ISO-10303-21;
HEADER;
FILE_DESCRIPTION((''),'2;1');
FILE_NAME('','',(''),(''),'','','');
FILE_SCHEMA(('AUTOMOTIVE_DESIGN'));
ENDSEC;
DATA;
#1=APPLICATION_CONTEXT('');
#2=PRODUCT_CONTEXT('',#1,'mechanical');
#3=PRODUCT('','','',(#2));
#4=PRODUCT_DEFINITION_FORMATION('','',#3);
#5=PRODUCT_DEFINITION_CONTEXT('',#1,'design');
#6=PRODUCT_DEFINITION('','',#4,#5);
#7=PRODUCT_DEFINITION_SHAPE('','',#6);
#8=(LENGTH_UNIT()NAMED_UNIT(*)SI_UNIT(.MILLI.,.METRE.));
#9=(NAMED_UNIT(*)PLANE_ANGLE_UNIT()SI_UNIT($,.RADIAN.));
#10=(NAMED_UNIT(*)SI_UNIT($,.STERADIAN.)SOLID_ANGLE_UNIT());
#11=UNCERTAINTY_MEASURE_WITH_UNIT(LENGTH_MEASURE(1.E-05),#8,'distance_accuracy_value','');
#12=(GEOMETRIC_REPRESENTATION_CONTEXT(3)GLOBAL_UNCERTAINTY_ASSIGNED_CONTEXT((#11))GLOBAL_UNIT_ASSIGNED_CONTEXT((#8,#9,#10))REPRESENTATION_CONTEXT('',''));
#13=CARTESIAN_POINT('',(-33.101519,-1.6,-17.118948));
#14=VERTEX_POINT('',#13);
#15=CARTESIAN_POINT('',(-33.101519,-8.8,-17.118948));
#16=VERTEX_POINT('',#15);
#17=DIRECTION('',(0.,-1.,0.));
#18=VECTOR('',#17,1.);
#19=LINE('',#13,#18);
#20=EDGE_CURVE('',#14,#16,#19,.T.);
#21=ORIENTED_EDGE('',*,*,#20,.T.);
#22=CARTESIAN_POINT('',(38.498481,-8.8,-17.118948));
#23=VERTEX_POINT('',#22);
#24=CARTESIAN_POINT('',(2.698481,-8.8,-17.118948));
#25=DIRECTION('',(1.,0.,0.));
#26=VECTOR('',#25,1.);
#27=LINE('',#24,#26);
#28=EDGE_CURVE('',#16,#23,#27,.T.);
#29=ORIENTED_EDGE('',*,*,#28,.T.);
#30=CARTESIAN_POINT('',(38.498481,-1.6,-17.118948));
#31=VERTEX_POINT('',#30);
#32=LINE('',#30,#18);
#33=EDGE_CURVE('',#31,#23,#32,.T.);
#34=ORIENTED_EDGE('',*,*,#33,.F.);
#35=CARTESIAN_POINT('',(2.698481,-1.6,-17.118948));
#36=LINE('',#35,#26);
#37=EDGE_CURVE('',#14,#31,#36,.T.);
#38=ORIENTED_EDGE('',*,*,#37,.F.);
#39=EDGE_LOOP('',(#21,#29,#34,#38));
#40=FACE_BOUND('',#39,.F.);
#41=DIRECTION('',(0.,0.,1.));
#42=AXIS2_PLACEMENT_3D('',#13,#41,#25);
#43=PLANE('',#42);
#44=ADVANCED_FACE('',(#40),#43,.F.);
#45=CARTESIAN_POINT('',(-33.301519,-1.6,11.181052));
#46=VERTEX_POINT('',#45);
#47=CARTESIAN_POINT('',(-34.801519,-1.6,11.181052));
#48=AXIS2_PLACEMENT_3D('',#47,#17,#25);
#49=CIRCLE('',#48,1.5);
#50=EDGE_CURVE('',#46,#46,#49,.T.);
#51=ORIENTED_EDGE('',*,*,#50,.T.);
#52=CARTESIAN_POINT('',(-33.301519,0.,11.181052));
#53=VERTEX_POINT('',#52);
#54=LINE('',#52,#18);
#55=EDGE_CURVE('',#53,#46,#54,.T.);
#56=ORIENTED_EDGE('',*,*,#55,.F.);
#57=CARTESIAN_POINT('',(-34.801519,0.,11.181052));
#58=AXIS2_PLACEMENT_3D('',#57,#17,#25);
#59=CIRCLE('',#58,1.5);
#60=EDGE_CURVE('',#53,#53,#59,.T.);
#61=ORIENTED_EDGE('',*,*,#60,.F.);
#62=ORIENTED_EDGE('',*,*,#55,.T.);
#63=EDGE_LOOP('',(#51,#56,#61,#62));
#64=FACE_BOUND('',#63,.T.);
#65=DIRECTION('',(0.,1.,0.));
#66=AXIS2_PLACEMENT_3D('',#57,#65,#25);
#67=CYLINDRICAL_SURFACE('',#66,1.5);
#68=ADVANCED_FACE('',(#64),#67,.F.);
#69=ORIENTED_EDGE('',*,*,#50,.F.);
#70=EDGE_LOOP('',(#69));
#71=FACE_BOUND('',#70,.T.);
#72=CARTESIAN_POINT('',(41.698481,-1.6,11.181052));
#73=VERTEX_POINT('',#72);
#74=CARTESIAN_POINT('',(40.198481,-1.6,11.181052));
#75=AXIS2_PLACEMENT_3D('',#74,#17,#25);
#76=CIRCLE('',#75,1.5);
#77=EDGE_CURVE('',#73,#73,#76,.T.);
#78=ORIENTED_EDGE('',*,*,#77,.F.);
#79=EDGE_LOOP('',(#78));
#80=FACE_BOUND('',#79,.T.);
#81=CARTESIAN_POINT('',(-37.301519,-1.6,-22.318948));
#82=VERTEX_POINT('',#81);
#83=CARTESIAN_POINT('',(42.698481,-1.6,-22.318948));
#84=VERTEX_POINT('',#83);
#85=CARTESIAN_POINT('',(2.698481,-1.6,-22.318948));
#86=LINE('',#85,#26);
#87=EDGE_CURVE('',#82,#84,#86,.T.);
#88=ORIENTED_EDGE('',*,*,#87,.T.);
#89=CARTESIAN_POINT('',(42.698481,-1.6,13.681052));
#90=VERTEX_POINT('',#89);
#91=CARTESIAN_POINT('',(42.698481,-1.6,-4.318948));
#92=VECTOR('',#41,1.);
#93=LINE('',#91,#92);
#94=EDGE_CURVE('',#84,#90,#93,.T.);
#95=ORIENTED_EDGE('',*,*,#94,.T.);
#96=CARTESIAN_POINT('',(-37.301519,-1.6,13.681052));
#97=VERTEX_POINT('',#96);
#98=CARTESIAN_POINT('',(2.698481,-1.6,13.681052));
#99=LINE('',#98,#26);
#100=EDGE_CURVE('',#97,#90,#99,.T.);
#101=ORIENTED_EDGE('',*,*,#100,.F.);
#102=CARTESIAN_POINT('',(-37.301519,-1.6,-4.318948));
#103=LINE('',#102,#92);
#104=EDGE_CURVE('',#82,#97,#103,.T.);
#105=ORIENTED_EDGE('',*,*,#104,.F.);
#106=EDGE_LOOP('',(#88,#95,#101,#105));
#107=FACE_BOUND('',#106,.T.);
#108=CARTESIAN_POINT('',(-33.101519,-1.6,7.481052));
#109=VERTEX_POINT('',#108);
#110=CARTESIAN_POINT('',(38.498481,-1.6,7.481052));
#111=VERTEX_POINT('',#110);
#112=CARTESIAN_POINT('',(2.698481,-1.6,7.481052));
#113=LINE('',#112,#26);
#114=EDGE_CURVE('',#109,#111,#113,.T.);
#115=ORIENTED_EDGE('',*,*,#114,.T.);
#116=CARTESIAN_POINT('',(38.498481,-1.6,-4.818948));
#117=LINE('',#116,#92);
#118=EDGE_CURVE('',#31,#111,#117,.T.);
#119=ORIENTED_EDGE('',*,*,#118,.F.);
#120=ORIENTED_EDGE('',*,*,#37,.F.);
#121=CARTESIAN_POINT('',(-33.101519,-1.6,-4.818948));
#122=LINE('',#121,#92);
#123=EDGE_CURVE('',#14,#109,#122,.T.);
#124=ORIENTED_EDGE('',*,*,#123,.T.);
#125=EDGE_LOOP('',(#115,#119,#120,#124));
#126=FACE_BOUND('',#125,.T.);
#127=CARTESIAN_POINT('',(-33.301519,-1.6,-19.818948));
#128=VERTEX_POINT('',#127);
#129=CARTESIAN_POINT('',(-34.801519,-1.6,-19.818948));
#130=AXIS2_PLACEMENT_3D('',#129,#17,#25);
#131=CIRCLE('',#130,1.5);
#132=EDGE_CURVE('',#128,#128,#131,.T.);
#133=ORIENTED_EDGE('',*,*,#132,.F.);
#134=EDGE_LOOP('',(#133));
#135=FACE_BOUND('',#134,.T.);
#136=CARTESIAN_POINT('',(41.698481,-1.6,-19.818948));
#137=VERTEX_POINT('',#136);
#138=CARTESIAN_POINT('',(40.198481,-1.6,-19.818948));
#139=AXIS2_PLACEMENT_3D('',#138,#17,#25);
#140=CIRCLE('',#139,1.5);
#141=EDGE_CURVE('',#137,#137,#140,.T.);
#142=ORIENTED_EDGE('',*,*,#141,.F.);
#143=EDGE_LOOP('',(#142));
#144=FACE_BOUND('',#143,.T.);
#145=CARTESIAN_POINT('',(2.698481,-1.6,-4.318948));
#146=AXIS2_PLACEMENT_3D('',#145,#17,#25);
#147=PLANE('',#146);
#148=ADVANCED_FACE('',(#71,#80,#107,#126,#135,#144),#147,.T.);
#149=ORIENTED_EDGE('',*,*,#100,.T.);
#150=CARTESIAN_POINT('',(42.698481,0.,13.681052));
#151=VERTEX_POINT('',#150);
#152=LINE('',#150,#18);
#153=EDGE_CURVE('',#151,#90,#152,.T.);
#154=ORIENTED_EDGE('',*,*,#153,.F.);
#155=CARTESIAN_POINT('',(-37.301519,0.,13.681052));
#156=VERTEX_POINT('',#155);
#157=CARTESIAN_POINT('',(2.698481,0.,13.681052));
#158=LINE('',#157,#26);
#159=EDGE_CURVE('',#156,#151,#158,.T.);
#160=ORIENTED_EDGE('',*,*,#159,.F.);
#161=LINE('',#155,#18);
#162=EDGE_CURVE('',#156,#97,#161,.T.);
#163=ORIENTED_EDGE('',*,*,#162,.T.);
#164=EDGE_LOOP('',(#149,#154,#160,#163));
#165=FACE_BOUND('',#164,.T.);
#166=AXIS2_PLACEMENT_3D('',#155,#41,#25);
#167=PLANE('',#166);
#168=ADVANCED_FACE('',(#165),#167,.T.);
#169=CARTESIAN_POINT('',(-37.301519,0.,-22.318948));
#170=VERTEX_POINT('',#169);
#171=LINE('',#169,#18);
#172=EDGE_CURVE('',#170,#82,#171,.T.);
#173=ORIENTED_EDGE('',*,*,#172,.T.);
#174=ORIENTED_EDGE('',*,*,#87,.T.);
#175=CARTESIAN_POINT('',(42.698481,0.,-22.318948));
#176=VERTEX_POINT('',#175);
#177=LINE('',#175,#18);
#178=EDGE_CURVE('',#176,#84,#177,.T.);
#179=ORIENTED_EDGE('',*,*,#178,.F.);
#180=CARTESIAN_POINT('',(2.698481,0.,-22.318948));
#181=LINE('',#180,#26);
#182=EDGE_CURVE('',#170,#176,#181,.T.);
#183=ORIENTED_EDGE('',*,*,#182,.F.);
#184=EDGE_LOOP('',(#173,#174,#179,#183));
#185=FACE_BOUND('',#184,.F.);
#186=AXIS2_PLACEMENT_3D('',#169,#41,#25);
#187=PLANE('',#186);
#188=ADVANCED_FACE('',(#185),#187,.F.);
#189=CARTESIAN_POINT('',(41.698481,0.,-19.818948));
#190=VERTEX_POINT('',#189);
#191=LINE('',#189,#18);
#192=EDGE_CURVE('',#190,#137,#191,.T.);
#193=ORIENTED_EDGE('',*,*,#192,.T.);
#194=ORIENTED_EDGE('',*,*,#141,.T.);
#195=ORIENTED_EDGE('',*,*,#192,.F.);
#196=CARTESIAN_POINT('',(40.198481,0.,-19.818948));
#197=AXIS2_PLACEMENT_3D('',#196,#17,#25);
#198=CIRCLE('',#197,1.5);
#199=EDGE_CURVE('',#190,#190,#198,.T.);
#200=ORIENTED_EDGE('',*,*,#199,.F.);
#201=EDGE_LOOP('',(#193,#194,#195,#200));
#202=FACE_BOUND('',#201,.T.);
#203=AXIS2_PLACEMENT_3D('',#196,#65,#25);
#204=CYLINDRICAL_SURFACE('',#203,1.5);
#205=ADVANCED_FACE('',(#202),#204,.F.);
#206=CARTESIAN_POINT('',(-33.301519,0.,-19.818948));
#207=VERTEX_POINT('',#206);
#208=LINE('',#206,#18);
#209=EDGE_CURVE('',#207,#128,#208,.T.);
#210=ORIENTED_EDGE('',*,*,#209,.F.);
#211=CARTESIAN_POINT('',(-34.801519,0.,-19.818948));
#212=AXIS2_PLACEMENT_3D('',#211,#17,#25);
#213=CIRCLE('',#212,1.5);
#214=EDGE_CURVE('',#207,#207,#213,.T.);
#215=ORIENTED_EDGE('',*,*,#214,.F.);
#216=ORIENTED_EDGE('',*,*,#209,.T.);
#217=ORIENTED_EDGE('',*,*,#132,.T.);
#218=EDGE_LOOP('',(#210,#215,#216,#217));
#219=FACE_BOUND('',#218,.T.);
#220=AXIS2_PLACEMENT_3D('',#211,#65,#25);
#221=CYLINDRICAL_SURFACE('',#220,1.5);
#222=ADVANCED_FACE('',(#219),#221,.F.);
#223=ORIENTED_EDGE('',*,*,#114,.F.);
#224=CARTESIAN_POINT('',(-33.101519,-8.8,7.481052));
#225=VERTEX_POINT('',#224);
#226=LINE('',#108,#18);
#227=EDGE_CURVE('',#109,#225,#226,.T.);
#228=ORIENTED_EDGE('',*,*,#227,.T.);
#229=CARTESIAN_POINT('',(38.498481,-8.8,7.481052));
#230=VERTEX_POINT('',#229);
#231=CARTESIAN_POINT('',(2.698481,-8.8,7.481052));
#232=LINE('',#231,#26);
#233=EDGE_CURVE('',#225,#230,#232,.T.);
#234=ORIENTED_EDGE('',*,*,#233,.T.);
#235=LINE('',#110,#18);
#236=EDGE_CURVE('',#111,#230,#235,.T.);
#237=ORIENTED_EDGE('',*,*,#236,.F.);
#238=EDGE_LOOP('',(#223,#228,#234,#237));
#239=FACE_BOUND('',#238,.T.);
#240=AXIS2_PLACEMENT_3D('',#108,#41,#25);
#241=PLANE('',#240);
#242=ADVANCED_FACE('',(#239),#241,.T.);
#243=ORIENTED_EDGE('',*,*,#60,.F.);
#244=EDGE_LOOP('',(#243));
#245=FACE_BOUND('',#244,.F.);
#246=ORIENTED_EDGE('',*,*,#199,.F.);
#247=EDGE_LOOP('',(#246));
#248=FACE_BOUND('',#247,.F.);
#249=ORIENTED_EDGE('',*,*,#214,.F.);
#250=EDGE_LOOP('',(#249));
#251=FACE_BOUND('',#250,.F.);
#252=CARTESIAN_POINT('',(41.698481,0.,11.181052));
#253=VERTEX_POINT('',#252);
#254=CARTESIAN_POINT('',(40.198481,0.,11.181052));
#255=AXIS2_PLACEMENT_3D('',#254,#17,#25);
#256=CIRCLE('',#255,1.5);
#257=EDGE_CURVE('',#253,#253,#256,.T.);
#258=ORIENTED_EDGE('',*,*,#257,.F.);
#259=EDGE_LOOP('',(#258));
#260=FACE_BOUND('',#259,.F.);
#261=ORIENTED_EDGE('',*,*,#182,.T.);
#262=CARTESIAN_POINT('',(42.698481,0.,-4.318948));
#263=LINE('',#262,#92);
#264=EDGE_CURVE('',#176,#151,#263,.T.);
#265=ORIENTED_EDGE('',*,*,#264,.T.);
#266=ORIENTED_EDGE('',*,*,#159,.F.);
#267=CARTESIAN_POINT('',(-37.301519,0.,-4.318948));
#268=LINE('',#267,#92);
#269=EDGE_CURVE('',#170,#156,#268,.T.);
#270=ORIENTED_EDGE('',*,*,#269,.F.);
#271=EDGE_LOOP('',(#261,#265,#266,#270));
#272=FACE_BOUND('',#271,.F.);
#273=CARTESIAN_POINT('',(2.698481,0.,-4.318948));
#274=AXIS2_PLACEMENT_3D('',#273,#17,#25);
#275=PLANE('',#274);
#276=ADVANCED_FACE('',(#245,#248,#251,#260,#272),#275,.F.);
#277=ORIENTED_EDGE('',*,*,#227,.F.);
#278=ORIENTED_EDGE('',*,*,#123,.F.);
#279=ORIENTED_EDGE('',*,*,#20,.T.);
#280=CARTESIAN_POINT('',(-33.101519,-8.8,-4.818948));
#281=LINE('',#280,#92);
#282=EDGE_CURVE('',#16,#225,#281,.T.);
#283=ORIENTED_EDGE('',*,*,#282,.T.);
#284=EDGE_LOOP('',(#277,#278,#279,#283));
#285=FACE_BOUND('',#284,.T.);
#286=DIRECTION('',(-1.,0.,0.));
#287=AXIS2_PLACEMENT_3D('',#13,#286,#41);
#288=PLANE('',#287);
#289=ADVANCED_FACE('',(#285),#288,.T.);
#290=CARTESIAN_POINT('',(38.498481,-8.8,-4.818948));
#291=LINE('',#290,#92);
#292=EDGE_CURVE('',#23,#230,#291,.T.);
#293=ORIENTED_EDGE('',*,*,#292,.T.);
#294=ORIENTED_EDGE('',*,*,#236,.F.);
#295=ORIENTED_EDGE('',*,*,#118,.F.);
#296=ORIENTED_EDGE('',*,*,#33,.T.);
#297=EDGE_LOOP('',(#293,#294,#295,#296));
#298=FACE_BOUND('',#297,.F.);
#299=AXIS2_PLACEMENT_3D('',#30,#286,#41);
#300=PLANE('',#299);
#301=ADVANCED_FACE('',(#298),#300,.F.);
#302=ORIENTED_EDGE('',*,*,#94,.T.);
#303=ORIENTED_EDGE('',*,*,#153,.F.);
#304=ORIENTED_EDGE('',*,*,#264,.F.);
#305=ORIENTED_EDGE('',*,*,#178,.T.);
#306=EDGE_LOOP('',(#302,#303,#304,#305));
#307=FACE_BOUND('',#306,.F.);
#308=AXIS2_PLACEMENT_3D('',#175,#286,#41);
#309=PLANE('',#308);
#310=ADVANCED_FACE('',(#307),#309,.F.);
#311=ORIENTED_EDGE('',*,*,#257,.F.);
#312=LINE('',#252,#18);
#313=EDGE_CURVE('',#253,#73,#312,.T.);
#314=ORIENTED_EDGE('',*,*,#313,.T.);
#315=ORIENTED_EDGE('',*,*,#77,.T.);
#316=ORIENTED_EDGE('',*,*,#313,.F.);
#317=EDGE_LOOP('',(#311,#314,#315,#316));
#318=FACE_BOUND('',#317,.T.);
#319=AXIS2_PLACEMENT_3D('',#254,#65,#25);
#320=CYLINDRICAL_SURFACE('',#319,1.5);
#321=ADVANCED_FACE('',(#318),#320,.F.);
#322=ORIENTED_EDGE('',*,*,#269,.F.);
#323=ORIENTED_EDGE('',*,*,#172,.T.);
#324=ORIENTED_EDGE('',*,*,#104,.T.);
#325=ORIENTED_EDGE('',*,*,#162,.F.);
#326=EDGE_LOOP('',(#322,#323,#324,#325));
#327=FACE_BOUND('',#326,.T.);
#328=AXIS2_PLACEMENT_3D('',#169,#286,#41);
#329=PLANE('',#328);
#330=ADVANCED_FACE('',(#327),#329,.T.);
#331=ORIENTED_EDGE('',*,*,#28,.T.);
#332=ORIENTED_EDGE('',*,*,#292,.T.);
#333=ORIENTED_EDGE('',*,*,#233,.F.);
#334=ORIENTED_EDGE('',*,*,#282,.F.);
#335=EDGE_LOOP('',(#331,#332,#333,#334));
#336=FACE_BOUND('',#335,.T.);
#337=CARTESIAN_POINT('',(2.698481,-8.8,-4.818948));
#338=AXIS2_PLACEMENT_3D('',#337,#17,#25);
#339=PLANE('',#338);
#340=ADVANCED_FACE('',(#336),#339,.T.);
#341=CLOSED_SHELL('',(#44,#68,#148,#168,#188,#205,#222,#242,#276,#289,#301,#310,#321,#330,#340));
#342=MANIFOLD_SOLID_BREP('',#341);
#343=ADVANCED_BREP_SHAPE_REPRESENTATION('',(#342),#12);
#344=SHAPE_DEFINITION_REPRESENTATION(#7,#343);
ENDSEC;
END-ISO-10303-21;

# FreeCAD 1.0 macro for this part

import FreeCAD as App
import Part
import Sketcher
from FreeCAD import Vector
Q = App.Units.Quantity

doc = App.newDocument("Part")
body = doc.addObject("PartDesign::Body", "Body")

sketch1 = doc.addObject("Sketcher::SketchObject", "Sketch")
body.addObject(sketch1)
sketch1.AttachmentSupport = (doc.XZ_Plane, [""])
sketch1.MapMode = "FlatFace"
sketch1.addGeometry([
    Part.LineSegment(Vector(-37.3, 13.7, 0), Vector(-37.3, -22.3, 0)),
    Part.LineSegment(Vector(-37.3, -22.3, 0), Vector(42.7, -22.3, 0)),
    Part.LineSegment(Vector(42.7, -22.3, 0), Vector(42.7, 13.7, 0)),
    Part.LineSegment(Vector(42.7, 13.7, 0), Vector(-37.3, 13.7, 0)),
    Part.Circle(Vector(-34.8, -19.8, 0), Vector(0, 0, 1), 1.5),
    Part.Circle(Vector(40.2, -19.8, 0), Vector(0, 0, 1), 1.5),
    Part.Circle(Vector(-34.8, 11.2, 0), Vector(0, 0, 1), 1.5),
    Part.Circle(Vector(40.2, 11.2, 0), Vector(0, 0, 1), 1.5),
], False)
sketch1.addConstraint([
    Sketcher.Constraint("Coincident", 0, 2, 1, 1),
    Sketcher.Constraint("Coincident", 1, 2, 2, 1),
    Sketcher.Constraint("Coincident", 2, 2, 3, 1),
    Sketcher.Constraint("Coincident", 3, 2, 0, 1),
    Sketcher.Constraint("Vertical", 0),
    Sketcher.Constraint("Horizontal", 1),
    Sketcher.Constraint("Vertical", 2),
    Sketcher.Constraint("Horizontal", 3),
    Sketcher.Constraint("Equal", 4, 5),
    Sketcher.Constraint("Equal", 5, 6),
    Sketcher.Constraint("Equal", 6, 7),
    Sketcher.Constraint("Horizontal", 4, 3, 5, 3),
    Sketcher.Constraint("Horizontal", 6, 3, 7, 3),
    Sketcher.Constraint("Vertical", 4, 3, 6, 3),
    Sketcher.Constraint("Vertical", 5, 3, 7, 3),
    Sketcher.Constraint("Diameter", 4, Q("3 mm")),
    Sketcher.Constraint("DistanceX", 1, 1, 1, 2, Q("80 mm")),
    Sketcher.Constraint("DistanceY", 0, 2, 0, 1, Q("36 mm")),
    Sketcher.Constraint("DistanceX", 4, 3, 5, 3, Q("75 mm")),
    Sketcher.Constraint("DistanceY", 4, 3, 6, 3, Q("31 mm")),
    Sketcher.Constraint("DistanceX", 0, 2, 4, 3, Q("2.5 mm")),
    Sketcher.Constraint("DistanceY", 0, 2, 4, 3, Q("2.5 mm")),
    Sketcher.Constraint("DistanceX", 4, 3, -1, 1, Q("34.801519 mm")),
    Sketcher.Constraint("DistanceY", -1, 1, 6, 3, Q("11.181052 mm")),
])
pad1 = doc.addObject("PartDesign::Pad", "Pad")
body.addObject(pad1)
pad1.Profile = sketch1
pad1.Length = 1.6

sketch2 = doc.addObject("Sketcher::SketchObject", "Sketch001")
body.addObject(sketch2)
sketch2.AttachmentSupport = (doc.XZ_Plane, [""])
sketch2.MapMode = "FlatFace"
sketch2.AttachmentOffset = App.Placement(Vector(0, 0, 1.6), App.Rotation())
sketch2.addGeometry([
    Part.LineSegment(Vector(-33, 7, 0), Vector(-33, -17, 0)),
    Part.LineSegment(Vector(-33, -17, 0), Vector(38, -17, 0)),
    Part.LineSegment(Vector(38, -17, 0), Vector(38, 7, 0)),
    Part.LineSegment(Vector(38, 7, 0), Vector(-33, 7, 0)),
], False)
sketch2.addConstraint([
    Sketcher.Constraint("Coincident", 0, 2, 1, 1),
    Sketcher.Constraint("Coincident", 1, 2, 2, 1),
    Sketcher.Constraint("Coincident", 2, 2, 3, 1),
    Sketcher.Constraint("Coincident", 3, 2, 0, 1),
    Sketcher.Constraint("Vertical", 0),
    Sketcher.Constraint("Horizontal", 1),
    Sketcher.Constraint("Vertical", 2),
    Sketcher.Constraint("Horizontal", 3),
    Sketcher.Constraint("DistanceX", 1, 1, 1, 2, Q("71.6 mm")),
    Sketcher.Constraint("DistanceY", 0, 2, 0, 1, Q("24.6 mm")),
    Sketcher.Constraint("DistanceX", 0, 2, -1, 1, Q("33.101519 mm")),
    Sketcher.Constraint("DistanceY", 0, 2, -1, 1, Q("17.118948 mm")),
])
pad2 = doc.addObject("PartDesign::Pad", "Pad001")
body.addObject(pad2)
pad2.Profile = sketch2
pad2.Length = 7.2

sketch3 = doc.addObject("Sketcher::SketchObject", "Sketch002")
body.addObject(sketch3)
sketch3.AttachmentSupport = (doc.XZ_Plane, [""])
sketch3.MapMode = "FlatFace"
sketch3.AttachmentOffset = App.Placement(Vector(0, 0, 8.8), App.Rotation())
sketch3.addGeometry([
    Part.LineSegment(Vector(-30, 2, 0), Vector(-30, -12, 0)),
    Part.LineSegment(Vector(-30, -12, 0), Vector(35, -12, 0)),
    Part.LineSegment(Vector(35, -12, 0), Vector(35, 2, 0)),
    Part.LineSegment(Vector(35, 2, 0), Vector(-30, 2, 0)),
], False)
sketch3.addConstraint([
    Sketcher.Constraint("Coincident", 0, 2, 1, 1),
    Sketcher.Constraint("Coincident", 1, 2, 2, 1),
    Sketcher.Constraint("Coincident", 2, 2, 3, 1),
    Sketcher.Constraint("Coincident", 3, 2, 0, 1),
    Sketcher.Constraint("Vertical", 0),
    Sketcher.Constraint("Horizontal", 1),
    Sketcher.Constraint("Vertical", 2),
    Sketcher.Constraint("Horizontal", 3),
    Sketcher.Constraint("DistanceX", 1, 1, 1, 2, Q("65 mm")),
    Sketcher.Constraint("DistanceY", 0, 2, 0, 1, Q("14 mm")),
    Sketcher.Constraint("DistanceX", 0, 2, -1, 1, Q("29.751519 mm")),
    Sketcher.Constraint("DistanceY", 0, 2, -1, 1, Q("12.466159 mm")),
])
pad3 = doc.addObject("PartDesign::Pad", "Pad002")
body.addObject(pad3)
pad3.Profile = sketch3
pad3.Length = 1
pad3.Reversed = True

doc.recompute()
